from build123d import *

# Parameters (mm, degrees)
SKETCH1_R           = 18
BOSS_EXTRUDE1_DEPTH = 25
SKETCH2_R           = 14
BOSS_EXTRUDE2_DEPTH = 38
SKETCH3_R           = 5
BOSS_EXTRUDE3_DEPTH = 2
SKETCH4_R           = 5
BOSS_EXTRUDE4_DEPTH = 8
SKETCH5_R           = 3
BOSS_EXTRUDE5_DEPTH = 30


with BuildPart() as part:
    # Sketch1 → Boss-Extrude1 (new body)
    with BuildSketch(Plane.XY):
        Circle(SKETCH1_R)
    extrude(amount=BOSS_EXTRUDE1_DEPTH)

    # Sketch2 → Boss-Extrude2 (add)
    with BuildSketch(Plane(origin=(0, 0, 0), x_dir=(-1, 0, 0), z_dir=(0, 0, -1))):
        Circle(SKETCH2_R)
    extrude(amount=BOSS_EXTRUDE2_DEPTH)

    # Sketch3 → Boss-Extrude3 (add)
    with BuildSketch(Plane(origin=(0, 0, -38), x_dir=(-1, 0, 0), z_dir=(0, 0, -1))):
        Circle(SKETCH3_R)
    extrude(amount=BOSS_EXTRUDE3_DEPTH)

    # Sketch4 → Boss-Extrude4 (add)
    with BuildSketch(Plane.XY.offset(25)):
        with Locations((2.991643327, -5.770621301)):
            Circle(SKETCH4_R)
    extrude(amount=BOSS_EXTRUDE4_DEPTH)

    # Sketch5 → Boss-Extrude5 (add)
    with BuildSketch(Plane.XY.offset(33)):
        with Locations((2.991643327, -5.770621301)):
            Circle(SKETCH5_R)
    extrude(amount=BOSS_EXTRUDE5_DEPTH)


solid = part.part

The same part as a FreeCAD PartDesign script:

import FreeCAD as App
import Part
import Sketcher
Q = App.Units.Quantity

doc = App.newDocument("Part")
body = doc.addObject("PartDesign::Body", "Body")

# Sketch on XY plane
sketch1 = body.newObject("Sketcher::SketchObject", "Sketch")
sketch1.AttachmentSupport = (doc.getObject("XY_Plane"), [""])
sketch1.MapMode = "FlatFace"
sketch1.addGeometry(Part.Circle(App.Vector(0, 0, 0), App.Vector(0, 0, 1), 18), False)
sketch1.addConstraint(Sketcher.Constraint("Coincident", 0, 3, -1, 1))
sketch1.addConstraint(Sketcher.Constraint("Diameter", 0, Q("36 mm")))
pad1 = body.newObject("PartDesign::Pad", "Pad")
pad1.Profile = sketch1
pad1.Length = 25

# Sketch on XY plane
sketch2 = body.newObject("Sketcher::SketchObject", "Sketch001")
sketch2.AttachmentSupport = (doc.getObject("XY_Plane"), [""])
sketch2.MapMode = "FlatFace"
sketch2.addGeometry(Part.Circle(App.Vector(0, 0, 0), App.Vector(0, 0, 1), 14), False)
sketch2.addConstraint(Sketcher.Constraint("Coincident", 0, 3, -1, 1))
sketch2.addConstraint(Sketcher.Constraint("Diameter", 0, Q("28 mm")))
pad2 = body.newObject("PartDesign::Pad", "Pad001")
pad2.Profile = sketch2
pad2.Length = 38
pad2.Reversed = True

# Sketch on XY plane
sketch3 = body.newObject("Sketcher::SketchObject", "Sketch002")
sketch3.AttachmentSupport = (doc.getObject("XY_Plane"), [""])
sketch3.MapMode = "FlatFace"
sketch3.AttachmentOffset = App.Placement(App.Vector(0, 0, -38), App.Rotation())
sketch3.addGeometry(Part.Circle(App.Vector(0, 0, 0), App.Vector(0, 0, 1), 5), False)
sketch3.addConstraint(Sketcher.Constraint("Coincident", 0, 3, -1, 1))
sketch3.addConstraint(Sketcher.Constraint("Diameter", 0, Q("10 mm")))
pad3 = body.newObject("PartDesign::Pad", "Pad002")
pad3.Profile = sketch3
pad3.Length = 2
pad3.Reversed = True

# Sketch on XY plane
sketch4 = body.newObject("Sketcher::SketchObject", "Sketch003")
sketch4.AttachmentSupport = (doc.getObject("XY_Plane"), [""])
sketch4.MapMode = "FlatFace"
sketch4.AttachmentOffset = App.Placement(App.Vector(0, 0, 25), App.Rotation())
sketch4.addGeometry(Part.Circle(App.Vector(3, -6, 0), App.Vector(0, 0, 1), 5), False)
sketch4.addConstraint(Sketcher.Constraint("Diameter", 0, Q("10 mm")))
sketch4.addConstraint(Sketcher.Constraint("DistanceY", 0, 3, -1, 1, Q("5.770621 mm")))
sketch4.addConstraint(Sketcher.Constraint("DistanceX", -1, 1, 0, 3, Q("2.991643 mm")))
pad4 = body.newObject("PartDesign::Pad", "Pad003")
pad4.Profile = sketch4
pad4.Length = 8

# Sketch on XY plane
sketch5 = body.newObject("Sketcher::SketchObject", "Sketch004")
sketch5.AttachmentSupport = (doc.getObject("XY_Plane"), [""])
sketch5.MapMode = "FlatFace"
sketch5.AttachmentOffset = App.Placement(App.Vector(0, 0, 33), App.Rotation())
sketch5.addGeometry(Part.Circle(App.Vector(3, -5.8, 0), App.Vector(0, 0, 1), 3), False)
sketch5.addConstraint(Sketcher.Constraint("Diameter", 0, Q("6 mm")))
sketch5.addConstraint(Sketcher.Constraint("DistanceY", 0, 3, -1, 1, Q("5.770621 mm")))
sketch5.addConstraint(Sketcher.Constraint("DistanceX", -1, 1, 0, 3, Q("2.991643 mm")))
pad5 = body.newObject("PartDesign::Pad", "Pad004")
pad5.Profile = sketch5
pad5.Length = 30

doc.recompute()
